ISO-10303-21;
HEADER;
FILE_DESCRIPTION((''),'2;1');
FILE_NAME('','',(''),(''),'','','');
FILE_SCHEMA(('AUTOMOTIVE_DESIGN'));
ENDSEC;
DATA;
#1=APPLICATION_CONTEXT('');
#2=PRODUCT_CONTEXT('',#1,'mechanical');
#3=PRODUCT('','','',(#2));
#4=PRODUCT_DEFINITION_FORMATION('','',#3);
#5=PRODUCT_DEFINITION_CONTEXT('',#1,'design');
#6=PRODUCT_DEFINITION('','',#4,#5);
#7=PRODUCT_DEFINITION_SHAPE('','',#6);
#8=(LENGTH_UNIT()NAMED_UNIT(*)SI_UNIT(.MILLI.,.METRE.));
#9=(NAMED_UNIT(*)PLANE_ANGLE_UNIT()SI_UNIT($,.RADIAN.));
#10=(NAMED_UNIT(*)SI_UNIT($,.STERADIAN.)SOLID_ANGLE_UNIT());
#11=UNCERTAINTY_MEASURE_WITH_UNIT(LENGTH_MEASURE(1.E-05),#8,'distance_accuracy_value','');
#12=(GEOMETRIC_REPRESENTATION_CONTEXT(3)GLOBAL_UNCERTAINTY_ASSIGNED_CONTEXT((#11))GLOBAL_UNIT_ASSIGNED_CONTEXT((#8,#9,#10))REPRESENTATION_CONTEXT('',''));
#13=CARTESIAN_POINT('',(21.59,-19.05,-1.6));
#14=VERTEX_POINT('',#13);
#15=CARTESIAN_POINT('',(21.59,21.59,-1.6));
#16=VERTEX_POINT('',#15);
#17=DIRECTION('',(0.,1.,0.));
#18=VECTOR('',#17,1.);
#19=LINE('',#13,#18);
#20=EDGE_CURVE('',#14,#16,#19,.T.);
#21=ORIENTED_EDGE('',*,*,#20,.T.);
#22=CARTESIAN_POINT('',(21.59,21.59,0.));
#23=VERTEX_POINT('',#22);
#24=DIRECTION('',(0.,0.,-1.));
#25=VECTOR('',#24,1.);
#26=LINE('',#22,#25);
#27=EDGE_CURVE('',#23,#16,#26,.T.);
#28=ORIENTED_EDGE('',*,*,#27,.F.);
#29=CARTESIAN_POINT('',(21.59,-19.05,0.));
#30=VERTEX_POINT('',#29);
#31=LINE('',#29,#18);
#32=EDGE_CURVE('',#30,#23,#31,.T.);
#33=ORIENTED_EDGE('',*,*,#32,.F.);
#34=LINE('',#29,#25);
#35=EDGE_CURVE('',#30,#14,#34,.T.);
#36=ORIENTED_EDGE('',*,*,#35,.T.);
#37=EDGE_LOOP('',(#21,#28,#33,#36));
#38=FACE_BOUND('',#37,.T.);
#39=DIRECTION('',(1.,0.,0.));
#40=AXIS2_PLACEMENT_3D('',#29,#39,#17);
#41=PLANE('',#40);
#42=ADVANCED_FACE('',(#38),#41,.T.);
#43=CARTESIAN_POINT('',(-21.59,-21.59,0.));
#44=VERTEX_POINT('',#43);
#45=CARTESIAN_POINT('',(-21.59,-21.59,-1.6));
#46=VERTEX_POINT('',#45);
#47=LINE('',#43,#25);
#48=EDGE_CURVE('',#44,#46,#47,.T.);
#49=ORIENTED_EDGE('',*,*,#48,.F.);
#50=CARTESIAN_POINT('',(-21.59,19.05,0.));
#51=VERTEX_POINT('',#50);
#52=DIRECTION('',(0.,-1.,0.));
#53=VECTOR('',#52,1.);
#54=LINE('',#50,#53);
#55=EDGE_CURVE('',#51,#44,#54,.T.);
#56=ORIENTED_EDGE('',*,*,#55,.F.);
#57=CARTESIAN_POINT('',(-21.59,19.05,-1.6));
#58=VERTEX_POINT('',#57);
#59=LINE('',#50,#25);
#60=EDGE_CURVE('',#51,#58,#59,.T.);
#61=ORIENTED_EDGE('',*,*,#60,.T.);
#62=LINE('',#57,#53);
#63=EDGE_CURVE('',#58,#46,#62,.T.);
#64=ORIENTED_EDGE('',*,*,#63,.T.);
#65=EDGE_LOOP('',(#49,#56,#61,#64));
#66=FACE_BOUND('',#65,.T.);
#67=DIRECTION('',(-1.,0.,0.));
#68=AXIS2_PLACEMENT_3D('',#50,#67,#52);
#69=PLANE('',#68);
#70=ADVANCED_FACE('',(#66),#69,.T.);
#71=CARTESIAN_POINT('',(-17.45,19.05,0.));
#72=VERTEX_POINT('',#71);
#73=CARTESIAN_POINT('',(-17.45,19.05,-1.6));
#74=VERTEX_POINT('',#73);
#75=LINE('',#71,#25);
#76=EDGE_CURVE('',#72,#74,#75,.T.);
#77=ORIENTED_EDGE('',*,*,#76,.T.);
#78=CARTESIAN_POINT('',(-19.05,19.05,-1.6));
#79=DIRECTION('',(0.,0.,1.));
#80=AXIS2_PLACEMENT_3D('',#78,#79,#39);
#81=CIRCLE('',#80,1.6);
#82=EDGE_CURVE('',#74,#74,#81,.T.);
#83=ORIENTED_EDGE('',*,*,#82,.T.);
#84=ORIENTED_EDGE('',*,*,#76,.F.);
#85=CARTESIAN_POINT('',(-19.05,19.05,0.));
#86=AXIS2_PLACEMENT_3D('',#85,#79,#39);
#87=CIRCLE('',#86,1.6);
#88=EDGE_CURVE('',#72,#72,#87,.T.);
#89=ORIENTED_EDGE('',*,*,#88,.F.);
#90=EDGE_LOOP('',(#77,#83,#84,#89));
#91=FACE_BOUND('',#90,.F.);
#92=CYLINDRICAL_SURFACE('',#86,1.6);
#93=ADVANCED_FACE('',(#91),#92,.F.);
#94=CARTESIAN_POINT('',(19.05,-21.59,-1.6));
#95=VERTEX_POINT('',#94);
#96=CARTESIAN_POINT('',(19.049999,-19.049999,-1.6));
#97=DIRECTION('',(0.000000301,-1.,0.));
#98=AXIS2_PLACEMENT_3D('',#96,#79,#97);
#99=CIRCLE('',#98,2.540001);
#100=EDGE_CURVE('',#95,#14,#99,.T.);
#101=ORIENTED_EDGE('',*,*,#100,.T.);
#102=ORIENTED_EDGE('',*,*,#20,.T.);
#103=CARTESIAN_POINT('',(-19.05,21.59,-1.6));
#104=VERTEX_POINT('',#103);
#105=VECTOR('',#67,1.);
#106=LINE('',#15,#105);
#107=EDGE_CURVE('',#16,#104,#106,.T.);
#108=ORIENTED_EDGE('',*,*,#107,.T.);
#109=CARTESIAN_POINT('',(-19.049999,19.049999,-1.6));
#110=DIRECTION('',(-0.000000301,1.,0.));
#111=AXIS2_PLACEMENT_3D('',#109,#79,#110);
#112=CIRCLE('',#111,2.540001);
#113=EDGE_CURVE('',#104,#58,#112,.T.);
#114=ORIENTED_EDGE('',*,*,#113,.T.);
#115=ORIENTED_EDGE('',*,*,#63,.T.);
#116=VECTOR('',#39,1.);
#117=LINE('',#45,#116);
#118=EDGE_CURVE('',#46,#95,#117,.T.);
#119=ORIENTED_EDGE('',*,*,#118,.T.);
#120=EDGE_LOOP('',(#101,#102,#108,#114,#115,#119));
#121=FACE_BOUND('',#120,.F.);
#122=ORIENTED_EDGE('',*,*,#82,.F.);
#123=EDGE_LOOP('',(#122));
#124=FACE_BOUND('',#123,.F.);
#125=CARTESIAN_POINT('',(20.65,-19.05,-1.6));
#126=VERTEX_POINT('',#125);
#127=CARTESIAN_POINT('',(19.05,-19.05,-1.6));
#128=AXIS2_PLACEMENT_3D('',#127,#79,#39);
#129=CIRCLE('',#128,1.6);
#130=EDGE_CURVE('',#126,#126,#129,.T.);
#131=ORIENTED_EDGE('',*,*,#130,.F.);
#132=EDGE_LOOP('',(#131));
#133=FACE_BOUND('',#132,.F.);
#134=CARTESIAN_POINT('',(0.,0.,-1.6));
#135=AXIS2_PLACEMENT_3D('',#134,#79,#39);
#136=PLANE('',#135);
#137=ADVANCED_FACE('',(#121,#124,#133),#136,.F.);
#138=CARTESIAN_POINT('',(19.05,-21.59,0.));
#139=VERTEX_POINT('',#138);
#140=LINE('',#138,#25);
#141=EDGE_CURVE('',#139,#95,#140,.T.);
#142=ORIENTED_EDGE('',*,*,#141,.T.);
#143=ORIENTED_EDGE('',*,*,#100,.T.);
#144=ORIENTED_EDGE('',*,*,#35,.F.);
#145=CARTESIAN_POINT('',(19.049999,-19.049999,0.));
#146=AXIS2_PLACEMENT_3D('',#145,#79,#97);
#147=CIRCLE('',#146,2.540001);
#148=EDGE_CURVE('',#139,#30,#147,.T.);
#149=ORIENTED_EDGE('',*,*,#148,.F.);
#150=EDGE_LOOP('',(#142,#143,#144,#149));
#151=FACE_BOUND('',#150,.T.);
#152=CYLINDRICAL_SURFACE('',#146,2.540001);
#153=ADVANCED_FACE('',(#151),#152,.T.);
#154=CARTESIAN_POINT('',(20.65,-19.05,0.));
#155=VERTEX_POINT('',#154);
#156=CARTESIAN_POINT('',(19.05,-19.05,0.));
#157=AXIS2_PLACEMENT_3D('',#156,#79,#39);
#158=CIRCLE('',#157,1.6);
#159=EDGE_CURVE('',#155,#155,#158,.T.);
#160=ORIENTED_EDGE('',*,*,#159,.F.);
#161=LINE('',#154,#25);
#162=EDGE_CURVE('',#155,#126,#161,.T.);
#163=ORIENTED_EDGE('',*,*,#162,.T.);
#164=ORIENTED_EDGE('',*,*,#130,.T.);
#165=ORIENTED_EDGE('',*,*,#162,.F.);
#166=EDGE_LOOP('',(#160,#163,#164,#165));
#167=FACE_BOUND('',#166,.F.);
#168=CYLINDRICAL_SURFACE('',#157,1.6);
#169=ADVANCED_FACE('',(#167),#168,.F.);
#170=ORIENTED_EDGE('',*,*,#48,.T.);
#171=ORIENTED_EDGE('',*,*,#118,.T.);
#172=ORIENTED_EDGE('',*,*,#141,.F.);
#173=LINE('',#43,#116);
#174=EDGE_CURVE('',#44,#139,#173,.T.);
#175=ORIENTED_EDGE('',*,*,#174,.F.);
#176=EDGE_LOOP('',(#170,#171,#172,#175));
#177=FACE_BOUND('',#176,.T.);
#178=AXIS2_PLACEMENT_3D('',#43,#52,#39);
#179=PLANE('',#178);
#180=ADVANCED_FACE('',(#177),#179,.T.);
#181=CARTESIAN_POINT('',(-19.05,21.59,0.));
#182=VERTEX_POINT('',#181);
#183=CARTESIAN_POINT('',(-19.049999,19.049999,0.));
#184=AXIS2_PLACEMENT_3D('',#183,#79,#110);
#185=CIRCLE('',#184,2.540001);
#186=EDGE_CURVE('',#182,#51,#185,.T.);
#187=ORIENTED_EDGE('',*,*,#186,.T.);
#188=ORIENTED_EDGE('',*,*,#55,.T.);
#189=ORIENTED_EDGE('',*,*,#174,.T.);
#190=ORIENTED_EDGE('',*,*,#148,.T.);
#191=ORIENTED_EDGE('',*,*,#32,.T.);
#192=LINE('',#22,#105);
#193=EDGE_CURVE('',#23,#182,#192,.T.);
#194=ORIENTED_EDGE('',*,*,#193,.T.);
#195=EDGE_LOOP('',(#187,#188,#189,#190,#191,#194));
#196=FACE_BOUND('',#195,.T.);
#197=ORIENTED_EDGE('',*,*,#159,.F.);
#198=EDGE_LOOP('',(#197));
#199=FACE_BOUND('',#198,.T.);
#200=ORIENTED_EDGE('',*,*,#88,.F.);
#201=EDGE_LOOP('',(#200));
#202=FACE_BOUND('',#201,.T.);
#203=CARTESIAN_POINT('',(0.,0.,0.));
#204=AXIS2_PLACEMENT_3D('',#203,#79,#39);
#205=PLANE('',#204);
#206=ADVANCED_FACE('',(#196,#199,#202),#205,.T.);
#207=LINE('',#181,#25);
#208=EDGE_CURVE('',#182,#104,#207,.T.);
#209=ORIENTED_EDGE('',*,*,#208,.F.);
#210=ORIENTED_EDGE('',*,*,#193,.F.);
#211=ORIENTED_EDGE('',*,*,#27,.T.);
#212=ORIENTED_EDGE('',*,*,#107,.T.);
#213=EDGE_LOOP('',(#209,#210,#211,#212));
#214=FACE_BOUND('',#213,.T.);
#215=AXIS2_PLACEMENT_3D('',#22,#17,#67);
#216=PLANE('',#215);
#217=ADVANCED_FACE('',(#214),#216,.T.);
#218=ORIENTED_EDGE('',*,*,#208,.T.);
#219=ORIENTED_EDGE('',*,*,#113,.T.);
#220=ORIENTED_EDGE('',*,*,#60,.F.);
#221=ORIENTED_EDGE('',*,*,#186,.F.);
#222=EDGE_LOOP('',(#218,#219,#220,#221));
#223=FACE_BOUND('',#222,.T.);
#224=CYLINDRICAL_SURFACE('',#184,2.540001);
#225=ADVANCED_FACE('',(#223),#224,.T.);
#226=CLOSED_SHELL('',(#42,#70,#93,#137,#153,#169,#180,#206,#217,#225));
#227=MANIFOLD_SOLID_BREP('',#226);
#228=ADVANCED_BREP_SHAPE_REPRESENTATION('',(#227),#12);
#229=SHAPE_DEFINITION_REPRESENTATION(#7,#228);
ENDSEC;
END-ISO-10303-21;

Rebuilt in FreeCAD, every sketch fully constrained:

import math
import FreeCAD as App
import Part
import Sketcher
Q = App.Units.Quantity

doc = App.newDocument("Part")
body = doc.addObject("PartDesign::Body", "Body")

# Sketch on XY plane
sketch1 = doc.addObject("Sketcher::SketchObject", "Sketch")
body.addObject(sketch1)
sketch1.AttachmentSupport = (doc.XY_Plane, [""])
sketch1.MapMode = "FlatFace"
sketch1.addGeometry(Part.LineSegment(App.Vector(21.59, 21.59, 0), App.Vector(-19.05, 21.59, 0)), False)
sketch1.addGeometry(Part.ArcOfCircle(Part.Circle(App.Vector(-19.049999, 19.049999, 0), App.Vector(0, 0, 1), 2.540001), math.radians(90.000017), math.radians(179.999983)), False)
sketch1.addGeometry(Part.LineSegment(App.Vector(-21.59, 19.05, 0), App.Vector(-21.59, -21.59, 0)), False)
sketch1.addGeometry(Part.LineSegment(App.Vector(-21.59, -21.59, 0), App.Vector(19.05, -21.59, 0)), False)
sketch1.addGeometry(Part.ArcOfCircle(Part.Circle(App.Vector(19.049999, -19.049999, 0), App.Vector(0, 0, 1), 2.540001), math.radians(-89.999983), math.radians(-0.000017)), False)
sketch1.addGeometry(Part.LineSegment(App.Vector(21.59, -19.05, 0), App.Vector(21.59, 21.59, 0)), False)
sketch1.addGeometry(Part.Circle(App.Vector(19.05, -19.05, 0), App.Vector(0, 0, 1), 1.6), False)
sketch1.addGeometry(Part.Circle(App.Vector(-19.05, 19.05, 0), App.Vector(0, 0, 1), 1.6), False)
sketch1.addConstraint(Sketcher.Constraint("Tangent", 0, 2, 1, 1))
sketch1.addConstraint(Sketcher.Constraint("Tangent", 1, 2, 2, 1))
sketch1.addConstraint(Sketcher.Constraint("Coincident", 2, 2, 3, 1))
sketch1.addConstraint(Sketcher.Constraint("Tangent", 3, 2, 4, 1))
sketch1.addConstraint(Sketcher.Constraint("Tangent", 4, 2, 5, 1))
sketch1.addConstraint(Sketcher.Constraint("Coincident", 5, 2, 0, 1))
sketch1.addConstraint(Sketcher.Constraint("Horizontal", 0))
sketch1.addConstraint(Sketcher.Constraint("Vertical", 2))
sketch1.addConstraint(Sketcher.Constraint("Horizontal", 3))
sketch1.addConstraint(Sketcher.Constraint("Vertical", 5))
sketch1.addConstraint(Sketcher.Constraint("Coincident", 6, 3, 4, 3))
sketch1.addConstraint(Sketcher.Constraint("Coincident", 7, 3, 1, 3))
sketch1.addConstraint(Sketcher.Constraint("Equal", 1, 4))
sketch1.addConstraint(Sketcher.Constraint("Equal", 6, 7))
sketch1.addConstraint(Sketcher.Constraint("Symmetric", 1, 3, 4, 3, -1, 1))
sketch1.addConstraint(Sketcher.Constraint("Equal", 3, 2))
sketch1.addConstraint(Sketcher.Constraint("Diameter", 6, Q("3.2 mm")))
sketch1.addConstraint(Sketcher.Constraint("Radius", 1, Q("2.540001 mm")))
sketch1.addConstraint(Sketcher.Constraint("DistanceX", 0, 2, 0, 1, Q("40.64 mm")))
pad1 = doc.addObject("PartDesign::Pad", "Pad")
body.addObject(pad1)
pad1.Profile = sketch1
pad1.Length = 1.6
pad1.Reversed = True

doc.recompute()
